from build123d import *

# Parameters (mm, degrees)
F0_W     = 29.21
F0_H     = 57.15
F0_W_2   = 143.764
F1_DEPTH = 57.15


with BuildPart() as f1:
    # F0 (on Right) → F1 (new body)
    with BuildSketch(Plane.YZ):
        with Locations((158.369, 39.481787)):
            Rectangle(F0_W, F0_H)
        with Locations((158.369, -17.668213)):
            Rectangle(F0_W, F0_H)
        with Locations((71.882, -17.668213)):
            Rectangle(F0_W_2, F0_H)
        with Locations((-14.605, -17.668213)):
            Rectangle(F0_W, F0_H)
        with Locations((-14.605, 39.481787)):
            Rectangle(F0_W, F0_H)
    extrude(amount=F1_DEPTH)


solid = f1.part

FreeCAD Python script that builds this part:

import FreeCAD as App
import Part
import Sketcher
from FreeCAD import Vector
Q = App.Units.Quantity


def add_polygon(sketch, points):
    """Adds a closed chain of lines whose ends are joined by coincident constraints."""
    first, n = sketch.GeometryCount, len(points)
    for a, b in zip(points, points[1:] + points[:1]):
        sketch.addGeometry(Part.LineSegment(App.Vector(*a, 0), App.Vector(*b, 0)), False)
    for i in range(n):
        sketch.addConstraint(Sketcher.Constraint("Coincident", first + i, 2, first + (i + 1) % n, 1))

doc = App.newDocument("Part")
body = doc.addObject("PartDesign::Body", "Body")

sketch1 = body.newObject("Sketcher::SketchObject", "Sketch")
sketch1.AttachmentSupport = (doc.getObject("YZ_Plane"), [""])
sketch1.MapMode = "FlatFace"
add_polygon(sketch1, [(144, 68), (144, 11), (0, 11), (0, 68), (-29, 68), (-29, -46), (173, -46), (173, 68)])
sketch1.addConstraint([
    Sketcher.Constraint("Vertical", 0),
    Sketcher.Constraint("Horizontal", 1),
    Sketcher.Constraint("Vertical", 2),
    Sketcher.Constraint("Horizontal", 3),
    Sketcher.Constraint("Vertical", 4),
    Sketcher.Constraint("Horizontal", 5),
    Sketcher.Constraint("Vertical", 6),
    Sketcher.Constraint("Horizontal", 7),
    Sketcher.Constraint("PointOnObject", 1, 2, -2),
    Sketcher.Constraint("Horizontal", 3, 2, 6, 2),
    Sketcher.Constraint("Equal", 3, 7),
    Sketcher.Constraint("DistanceY", 4, 2, 4, 1, Q("4.5 in")),
    Sketcher.Constraint("DistanceX", 1, 2, 1, 1, Q("5.66 in")),
    Sketcher.Constraint("DistanceX", 3, 2, 3, 1, Q("1.15 in")),
    Sketcher.Constraint("DistanceY", 0, 2, 0, 1, Q("2.25 in")),
    Sketcher.Constraint("DistanceY", -1, 1, 0, 2, 10.906787),
])
pad1 = body.newObject("PartDesign::Pad", "Pad")
pad1.Profile = sketch1
pad1.Length = Q("2.25 in")

doc.recompute()
